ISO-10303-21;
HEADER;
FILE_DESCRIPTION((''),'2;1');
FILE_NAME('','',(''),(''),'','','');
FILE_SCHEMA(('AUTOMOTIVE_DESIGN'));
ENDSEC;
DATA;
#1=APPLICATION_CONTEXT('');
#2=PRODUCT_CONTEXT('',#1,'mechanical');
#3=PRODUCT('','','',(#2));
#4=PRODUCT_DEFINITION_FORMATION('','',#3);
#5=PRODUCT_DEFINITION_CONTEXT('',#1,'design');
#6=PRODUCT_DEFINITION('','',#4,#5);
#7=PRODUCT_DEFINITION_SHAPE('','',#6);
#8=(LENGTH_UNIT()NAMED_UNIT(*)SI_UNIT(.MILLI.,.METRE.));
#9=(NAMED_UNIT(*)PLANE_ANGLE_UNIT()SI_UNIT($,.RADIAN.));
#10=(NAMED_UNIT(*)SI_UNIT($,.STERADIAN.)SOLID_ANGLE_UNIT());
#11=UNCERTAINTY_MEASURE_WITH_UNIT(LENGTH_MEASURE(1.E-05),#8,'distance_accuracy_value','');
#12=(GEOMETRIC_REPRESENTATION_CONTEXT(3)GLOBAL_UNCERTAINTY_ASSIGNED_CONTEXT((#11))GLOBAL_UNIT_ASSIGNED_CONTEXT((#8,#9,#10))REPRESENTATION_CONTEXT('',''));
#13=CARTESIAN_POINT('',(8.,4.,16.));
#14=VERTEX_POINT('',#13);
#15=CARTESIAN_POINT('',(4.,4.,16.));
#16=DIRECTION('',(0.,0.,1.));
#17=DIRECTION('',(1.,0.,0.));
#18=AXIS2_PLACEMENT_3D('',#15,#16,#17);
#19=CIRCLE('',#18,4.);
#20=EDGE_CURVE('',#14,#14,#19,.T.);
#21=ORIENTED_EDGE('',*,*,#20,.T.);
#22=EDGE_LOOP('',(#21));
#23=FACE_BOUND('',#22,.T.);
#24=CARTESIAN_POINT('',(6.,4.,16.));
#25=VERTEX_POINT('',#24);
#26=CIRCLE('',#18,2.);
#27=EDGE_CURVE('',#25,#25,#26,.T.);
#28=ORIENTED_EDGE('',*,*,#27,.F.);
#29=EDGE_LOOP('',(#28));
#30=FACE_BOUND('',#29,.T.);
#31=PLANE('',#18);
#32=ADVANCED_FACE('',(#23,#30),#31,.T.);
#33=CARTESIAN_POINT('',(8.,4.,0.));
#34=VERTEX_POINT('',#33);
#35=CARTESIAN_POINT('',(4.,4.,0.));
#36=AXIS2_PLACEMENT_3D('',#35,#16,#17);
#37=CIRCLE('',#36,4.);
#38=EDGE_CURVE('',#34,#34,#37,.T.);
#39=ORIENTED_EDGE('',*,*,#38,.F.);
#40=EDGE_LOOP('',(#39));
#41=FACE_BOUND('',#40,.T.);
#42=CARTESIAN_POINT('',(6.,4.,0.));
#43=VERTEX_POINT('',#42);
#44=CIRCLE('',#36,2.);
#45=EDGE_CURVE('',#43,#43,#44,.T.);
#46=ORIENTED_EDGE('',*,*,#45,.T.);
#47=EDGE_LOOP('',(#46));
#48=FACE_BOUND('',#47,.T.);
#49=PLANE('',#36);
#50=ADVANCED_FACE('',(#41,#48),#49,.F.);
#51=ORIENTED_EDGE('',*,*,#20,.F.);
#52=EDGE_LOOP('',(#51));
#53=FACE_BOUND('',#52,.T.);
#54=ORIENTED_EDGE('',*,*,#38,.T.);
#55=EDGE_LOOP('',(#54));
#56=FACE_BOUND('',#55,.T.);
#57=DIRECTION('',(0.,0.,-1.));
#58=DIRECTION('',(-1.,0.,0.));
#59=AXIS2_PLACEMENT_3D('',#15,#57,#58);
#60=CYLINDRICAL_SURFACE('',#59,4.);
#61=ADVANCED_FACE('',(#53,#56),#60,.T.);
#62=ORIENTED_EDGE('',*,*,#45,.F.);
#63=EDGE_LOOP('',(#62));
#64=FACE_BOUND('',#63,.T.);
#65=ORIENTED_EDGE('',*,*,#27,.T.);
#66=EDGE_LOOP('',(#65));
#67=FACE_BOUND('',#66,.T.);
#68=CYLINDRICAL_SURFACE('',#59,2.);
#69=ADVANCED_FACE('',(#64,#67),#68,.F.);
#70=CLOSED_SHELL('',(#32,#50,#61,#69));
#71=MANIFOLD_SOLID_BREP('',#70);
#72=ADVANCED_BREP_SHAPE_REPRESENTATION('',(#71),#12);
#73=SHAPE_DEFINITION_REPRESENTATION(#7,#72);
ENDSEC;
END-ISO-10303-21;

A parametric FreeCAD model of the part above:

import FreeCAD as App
import Part
import Sketcher

doc = App.newDocument("Part")
body = doc.addObject("PartDesign::Body", "Body")

# Sketch on XY plane
sketch1 = doc.addObject("Sketcher::SketchObject", "Sketch")
body.addObject(sketch1)
sketch1.AttachmentSupport = (doc.XY_Plane, [""])
sketch1.MapMode = "FlatFace"
sketch1.addGeometry(Part.Circle(App.Vector(4, 4, 0), App.Vector(0, 0, 1), 4), False)
sketch1.addGeometry(Part.Circle(App.Vector(4, 4, 0), App.Vector(0, 0, 1), 2), False)
sketch1.addConstraint(Sketcher.Constraint("Coincident", 1, 3, 0, 3))
sketch1.addConstraint(Sketcher.Constraint("Diameter", 0, 8.0))
sketch1.addConstraint(Sketcher.Constraint("Diameter", 1, 4.0))
sketch1.addConstraint(Sketcher.Constraint("DistanceX", -1, 1, 0, 3, 4.0))
sketch1.addConstraint(Sketcher.Constraint("DistanceY", -1, 1, 0, 3, 4.0))
pad1 = doc.addObject("PartDesign::Pad", "Pad")
body.addObject(pad1)
pad1.Profile = sketch1
pad1.Length = 16

doc.recompute()
